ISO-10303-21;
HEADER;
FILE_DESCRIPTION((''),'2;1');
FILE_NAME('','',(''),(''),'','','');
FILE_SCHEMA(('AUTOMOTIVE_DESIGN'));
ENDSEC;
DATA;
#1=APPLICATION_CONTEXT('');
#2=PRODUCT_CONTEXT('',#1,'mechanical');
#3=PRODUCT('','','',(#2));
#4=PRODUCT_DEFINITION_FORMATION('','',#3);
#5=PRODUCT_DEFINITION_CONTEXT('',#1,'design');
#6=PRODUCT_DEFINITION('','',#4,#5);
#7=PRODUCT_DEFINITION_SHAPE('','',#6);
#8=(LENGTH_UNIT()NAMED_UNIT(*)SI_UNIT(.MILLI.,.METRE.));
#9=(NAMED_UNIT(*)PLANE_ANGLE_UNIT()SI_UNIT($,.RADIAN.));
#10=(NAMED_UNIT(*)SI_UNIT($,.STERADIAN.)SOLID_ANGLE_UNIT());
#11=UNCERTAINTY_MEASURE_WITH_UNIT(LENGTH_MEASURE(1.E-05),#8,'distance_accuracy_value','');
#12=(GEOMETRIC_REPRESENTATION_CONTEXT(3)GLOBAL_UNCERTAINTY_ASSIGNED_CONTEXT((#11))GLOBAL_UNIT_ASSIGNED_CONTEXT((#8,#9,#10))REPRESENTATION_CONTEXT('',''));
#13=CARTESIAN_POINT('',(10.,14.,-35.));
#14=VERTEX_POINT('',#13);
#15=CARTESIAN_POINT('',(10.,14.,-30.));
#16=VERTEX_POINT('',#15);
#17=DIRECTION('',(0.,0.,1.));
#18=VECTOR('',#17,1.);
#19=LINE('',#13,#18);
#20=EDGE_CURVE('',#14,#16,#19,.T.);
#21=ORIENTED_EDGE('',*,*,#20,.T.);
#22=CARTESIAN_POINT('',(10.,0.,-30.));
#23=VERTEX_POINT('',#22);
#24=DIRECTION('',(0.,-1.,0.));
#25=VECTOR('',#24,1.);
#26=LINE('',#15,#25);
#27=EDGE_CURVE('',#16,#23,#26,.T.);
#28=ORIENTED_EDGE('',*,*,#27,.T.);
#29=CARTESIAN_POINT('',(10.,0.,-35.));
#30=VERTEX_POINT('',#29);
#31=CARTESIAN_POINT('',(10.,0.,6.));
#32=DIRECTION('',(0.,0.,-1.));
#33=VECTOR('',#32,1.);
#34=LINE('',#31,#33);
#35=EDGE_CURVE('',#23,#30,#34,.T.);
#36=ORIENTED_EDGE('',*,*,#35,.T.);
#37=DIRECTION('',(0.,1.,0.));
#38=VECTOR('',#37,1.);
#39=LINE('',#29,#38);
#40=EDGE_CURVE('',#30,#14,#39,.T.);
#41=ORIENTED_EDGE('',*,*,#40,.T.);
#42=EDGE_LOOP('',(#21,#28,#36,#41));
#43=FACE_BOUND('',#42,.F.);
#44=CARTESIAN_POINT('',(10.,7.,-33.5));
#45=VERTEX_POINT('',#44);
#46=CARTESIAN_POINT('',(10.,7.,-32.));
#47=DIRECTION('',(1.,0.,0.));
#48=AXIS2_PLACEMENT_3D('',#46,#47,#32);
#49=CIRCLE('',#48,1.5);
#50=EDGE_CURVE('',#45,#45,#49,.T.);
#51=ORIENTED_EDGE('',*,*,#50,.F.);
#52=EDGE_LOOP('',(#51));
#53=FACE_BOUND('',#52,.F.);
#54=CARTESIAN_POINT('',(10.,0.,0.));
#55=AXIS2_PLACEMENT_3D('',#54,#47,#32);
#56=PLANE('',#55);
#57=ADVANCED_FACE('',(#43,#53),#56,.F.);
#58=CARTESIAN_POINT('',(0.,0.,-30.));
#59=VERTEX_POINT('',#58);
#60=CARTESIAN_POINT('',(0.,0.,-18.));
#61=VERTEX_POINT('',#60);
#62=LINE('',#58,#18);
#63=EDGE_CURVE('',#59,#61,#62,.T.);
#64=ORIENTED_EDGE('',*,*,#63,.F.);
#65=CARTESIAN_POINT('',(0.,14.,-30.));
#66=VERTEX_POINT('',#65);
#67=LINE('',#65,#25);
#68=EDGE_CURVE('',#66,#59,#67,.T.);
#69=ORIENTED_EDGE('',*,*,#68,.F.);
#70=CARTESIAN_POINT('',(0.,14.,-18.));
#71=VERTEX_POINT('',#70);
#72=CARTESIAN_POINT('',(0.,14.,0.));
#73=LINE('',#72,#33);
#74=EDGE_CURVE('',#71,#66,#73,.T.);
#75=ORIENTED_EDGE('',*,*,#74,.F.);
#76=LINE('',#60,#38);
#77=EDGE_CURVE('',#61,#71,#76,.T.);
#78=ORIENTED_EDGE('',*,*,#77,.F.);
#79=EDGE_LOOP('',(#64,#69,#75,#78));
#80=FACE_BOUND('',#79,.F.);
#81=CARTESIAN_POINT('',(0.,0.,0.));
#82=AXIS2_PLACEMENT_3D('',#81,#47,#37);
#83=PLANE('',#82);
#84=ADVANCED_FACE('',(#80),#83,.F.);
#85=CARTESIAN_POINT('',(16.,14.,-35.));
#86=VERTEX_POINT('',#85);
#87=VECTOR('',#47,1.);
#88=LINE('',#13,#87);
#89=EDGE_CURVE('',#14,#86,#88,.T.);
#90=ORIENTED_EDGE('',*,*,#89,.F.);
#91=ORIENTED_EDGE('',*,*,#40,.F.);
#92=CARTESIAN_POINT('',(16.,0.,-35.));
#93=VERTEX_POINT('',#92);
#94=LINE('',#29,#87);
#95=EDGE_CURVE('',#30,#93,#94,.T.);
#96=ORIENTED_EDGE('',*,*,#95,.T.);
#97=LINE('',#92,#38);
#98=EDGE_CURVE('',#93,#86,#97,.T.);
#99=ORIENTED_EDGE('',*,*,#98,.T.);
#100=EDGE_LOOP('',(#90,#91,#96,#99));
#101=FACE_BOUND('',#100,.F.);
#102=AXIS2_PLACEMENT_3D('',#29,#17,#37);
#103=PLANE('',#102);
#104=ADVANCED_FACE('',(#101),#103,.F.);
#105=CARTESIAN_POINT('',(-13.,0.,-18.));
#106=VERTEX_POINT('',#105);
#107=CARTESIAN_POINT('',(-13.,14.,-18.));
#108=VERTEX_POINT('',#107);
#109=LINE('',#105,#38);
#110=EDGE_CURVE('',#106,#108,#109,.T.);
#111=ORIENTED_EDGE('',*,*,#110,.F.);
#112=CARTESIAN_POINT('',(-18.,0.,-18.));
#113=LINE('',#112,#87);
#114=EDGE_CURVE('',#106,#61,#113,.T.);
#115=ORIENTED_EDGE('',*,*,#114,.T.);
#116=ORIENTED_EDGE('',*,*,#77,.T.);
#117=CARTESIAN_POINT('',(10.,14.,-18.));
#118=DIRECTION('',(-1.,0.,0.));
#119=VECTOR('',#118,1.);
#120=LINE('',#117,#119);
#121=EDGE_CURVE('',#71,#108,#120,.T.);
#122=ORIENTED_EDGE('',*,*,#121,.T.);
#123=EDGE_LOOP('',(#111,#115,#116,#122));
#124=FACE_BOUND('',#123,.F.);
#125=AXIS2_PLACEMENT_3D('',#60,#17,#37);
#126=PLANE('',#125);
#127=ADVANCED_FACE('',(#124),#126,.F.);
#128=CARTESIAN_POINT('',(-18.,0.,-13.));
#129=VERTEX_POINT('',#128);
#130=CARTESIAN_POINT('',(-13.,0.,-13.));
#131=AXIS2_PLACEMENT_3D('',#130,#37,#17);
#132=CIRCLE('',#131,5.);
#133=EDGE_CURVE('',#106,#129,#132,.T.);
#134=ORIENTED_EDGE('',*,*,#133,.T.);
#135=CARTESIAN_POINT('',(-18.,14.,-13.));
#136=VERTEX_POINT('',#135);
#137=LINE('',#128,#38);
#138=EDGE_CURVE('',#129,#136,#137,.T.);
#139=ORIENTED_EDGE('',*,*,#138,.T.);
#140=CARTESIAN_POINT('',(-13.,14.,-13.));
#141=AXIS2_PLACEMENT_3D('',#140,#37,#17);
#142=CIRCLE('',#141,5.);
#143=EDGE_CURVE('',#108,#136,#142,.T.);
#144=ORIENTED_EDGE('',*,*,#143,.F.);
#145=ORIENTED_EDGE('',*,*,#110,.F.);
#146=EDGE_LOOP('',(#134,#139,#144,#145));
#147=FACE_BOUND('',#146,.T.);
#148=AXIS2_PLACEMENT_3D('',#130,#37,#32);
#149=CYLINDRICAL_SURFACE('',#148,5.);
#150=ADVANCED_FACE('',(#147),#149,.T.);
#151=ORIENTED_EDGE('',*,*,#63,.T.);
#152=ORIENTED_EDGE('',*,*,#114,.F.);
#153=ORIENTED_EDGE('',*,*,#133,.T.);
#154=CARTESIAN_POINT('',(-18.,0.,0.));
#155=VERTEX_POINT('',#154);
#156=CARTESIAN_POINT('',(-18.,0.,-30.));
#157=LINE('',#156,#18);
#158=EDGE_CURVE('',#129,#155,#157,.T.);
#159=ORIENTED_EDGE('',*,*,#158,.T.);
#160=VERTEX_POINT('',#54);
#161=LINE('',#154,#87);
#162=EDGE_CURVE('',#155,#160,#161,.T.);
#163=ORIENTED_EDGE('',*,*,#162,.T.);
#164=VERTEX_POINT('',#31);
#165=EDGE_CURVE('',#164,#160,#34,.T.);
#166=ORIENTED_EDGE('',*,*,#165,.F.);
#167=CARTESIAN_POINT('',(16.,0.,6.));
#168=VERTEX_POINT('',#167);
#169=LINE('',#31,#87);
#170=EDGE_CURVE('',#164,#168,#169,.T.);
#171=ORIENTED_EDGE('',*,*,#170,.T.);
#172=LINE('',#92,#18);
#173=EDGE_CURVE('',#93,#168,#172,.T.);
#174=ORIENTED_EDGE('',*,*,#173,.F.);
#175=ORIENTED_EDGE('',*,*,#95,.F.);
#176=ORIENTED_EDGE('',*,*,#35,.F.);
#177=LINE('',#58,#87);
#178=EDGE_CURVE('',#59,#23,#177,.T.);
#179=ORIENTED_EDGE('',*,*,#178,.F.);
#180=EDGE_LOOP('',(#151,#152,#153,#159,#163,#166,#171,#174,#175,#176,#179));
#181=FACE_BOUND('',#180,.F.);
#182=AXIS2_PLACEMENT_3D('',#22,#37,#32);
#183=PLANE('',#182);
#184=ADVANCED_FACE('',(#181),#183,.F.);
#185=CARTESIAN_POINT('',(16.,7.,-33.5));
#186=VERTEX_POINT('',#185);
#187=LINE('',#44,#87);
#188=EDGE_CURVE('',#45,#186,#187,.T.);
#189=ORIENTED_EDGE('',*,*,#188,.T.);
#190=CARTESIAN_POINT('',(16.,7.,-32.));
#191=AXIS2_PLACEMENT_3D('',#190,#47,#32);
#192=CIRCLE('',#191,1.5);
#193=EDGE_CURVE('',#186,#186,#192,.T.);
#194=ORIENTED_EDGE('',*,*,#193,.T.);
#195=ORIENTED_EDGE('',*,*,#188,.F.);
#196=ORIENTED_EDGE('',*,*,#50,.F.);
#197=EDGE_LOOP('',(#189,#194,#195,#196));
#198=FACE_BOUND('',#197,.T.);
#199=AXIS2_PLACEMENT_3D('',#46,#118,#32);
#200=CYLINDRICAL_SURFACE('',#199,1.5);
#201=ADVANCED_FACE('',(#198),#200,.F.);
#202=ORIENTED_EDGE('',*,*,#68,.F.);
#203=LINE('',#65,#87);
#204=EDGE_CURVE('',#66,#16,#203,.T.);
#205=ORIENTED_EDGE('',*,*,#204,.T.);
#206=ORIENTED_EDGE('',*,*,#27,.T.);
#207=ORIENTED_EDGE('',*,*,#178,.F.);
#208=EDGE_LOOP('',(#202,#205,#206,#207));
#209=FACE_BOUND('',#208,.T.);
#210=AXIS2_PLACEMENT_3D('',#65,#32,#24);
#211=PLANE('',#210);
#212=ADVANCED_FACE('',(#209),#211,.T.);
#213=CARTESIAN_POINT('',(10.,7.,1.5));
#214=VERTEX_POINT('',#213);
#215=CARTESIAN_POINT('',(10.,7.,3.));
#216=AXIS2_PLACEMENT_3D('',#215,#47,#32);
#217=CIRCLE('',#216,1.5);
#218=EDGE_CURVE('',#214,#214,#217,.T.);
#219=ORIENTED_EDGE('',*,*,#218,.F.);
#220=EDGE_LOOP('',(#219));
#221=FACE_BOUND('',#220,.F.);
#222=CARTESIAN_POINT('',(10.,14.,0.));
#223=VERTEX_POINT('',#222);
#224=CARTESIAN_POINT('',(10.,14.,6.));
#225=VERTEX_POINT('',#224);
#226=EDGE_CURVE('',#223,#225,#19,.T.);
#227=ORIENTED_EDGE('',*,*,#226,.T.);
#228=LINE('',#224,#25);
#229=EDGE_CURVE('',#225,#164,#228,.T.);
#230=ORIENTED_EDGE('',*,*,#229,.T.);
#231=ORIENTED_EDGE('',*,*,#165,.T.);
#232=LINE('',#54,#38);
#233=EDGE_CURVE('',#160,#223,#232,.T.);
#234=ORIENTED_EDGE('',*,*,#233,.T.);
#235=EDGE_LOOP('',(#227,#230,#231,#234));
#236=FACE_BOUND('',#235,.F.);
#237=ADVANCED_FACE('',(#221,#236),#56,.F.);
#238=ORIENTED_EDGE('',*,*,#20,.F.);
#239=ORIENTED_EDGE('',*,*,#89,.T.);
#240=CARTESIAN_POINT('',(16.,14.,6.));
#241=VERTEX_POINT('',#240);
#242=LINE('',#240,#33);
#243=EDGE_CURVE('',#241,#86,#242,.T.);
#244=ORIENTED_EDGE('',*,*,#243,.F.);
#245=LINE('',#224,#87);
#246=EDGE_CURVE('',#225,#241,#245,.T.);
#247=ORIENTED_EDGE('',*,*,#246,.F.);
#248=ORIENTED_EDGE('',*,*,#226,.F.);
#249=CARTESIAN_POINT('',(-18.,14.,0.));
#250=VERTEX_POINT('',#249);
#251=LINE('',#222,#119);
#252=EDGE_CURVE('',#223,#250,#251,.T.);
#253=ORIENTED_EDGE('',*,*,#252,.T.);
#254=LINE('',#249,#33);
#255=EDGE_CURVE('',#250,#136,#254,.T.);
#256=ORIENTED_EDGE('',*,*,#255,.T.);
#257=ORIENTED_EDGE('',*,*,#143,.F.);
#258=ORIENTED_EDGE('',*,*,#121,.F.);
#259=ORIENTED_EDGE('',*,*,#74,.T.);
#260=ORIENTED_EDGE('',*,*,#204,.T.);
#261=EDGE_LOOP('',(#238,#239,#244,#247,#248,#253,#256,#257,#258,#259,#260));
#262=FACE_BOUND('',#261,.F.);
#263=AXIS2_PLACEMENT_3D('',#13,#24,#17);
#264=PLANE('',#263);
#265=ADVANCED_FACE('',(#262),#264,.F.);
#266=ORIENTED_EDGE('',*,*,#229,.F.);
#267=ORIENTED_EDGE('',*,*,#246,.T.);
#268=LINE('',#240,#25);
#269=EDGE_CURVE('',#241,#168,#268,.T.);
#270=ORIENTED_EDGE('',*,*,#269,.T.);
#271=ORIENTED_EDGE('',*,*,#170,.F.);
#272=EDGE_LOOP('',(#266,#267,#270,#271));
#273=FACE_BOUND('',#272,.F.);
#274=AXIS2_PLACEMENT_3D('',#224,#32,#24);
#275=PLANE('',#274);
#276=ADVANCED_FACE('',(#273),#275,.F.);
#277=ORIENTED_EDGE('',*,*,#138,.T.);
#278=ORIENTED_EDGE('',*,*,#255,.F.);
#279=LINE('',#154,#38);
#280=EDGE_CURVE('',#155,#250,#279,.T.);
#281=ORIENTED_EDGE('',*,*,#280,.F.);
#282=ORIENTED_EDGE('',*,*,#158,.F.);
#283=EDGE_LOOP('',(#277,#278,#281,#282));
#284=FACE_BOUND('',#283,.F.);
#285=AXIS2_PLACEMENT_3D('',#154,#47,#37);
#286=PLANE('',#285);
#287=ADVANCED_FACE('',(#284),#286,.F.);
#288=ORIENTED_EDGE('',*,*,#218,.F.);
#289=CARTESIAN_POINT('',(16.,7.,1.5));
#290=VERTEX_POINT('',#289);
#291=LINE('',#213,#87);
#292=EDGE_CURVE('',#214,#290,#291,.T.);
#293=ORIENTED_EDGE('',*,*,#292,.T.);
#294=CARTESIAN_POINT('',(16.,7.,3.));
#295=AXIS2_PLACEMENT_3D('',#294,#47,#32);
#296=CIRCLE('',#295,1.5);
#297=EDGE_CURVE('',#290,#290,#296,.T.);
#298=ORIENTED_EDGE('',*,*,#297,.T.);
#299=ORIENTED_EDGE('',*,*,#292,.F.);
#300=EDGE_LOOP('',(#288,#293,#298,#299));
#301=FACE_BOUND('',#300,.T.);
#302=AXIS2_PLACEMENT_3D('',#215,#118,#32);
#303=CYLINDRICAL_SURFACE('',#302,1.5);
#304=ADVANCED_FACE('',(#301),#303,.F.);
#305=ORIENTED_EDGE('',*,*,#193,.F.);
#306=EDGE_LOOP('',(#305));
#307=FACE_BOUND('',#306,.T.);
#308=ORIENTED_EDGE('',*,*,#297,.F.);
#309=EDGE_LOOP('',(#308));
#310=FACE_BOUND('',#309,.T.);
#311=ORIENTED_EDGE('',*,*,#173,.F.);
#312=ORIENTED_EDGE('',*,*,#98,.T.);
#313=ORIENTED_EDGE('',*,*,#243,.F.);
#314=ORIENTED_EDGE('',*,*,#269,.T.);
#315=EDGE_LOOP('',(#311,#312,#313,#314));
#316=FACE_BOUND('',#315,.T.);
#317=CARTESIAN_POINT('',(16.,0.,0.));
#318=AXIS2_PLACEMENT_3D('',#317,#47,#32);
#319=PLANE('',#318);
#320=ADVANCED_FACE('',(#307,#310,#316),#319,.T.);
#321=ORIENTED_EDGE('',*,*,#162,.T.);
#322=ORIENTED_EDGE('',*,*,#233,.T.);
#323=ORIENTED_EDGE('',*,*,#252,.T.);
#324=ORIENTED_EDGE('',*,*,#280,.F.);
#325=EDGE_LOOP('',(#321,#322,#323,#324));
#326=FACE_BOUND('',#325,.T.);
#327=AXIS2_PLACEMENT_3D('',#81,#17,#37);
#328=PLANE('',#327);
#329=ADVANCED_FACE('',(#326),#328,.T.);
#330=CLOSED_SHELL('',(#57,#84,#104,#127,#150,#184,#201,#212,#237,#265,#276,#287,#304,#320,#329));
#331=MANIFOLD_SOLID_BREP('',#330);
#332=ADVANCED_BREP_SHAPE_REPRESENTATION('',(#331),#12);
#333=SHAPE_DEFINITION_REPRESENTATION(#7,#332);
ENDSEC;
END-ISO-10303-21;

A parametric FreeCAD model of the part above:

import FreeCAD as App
import Part
import Sketcher
Q = App.Units.Quantity


def edges_at(feature, points):
    """Names of the edges that pass closest to the given points."""
    edges = feature.Shape.Edges
    near = lambda p: min(range(len(edges)), key=lambda i: edges[i].distToShape(Part.Vertex(*p))[0])
    return sorted({f"Edge{near(p) + 1}" for p in points})

doc = App.newDocument("Part")
body = doc.addObject("PartDesign::Body", "Body")

sketch1 = body.newObject("Sketcher::SketchObject", "Sketch")
sketch1.AttachmentSupport = (doc.getObject("YZ_Plane"), [""])
sketch1.MapMode = "FlatFace"
sketch1.addGeometry([
    Part.LineSegment(App.Vector(14, -18, 0), App.Vector(0, -18, 0)),
    Part.LineSegment(App.Vector(0, -18, 0), App.Vector(0, -30, 0)),
    Part.LineSegment(App.Vector(0, -30, 0), App.Vector(14, -30, 0)),
    Part.LineSegment(App.Vector(14, -30, 0), App.Vector(14, -18, 0)),
], False)
sketch1.addConstraint([
    Sketcher.Constraint("Coincident", 0, 2, 1, 1),
    Sketcher.Constraint("Coincident", 1, 2, 2, 1),
    Sketcher.Constraint("Coincident", 2, 2, 3, 1),
    Sketcher.Constraint("Coincident", 3, 2, 0, 1),
    Sketcher.Constraint("Horizontal", 0),
    Sketcher.Constraint("Vertical", 1),
    Sketcher.Constraint("Horizontal", 2),
    Sketcher.Constraint("Vertical", 3),
    Sketcher.Constraint("PointOnObject", 0, 2, -2),
    Sketcher.Constraint("DistanceX", 0, 2, 0, 1, Q("14 mm")),
    Sketcher.Constraint("DistanceY", 1, 2, 1, 1, Q("12 mm")),
    Sketcher.Constraint("DistanceY", 1, 2, -1, 1, Q("30 mm")),
])
pad1 = body.newObject("PartDesign::Pad", "Pad")
pad1.Profile = sketch1
pad1.Length = 10

sketch2 = body.newObject("Sketcher::SketchObject", "Sketch001")
sketch2.AttachmentSupport = (doc.getObject("YZ_Plane"), [""])
sketch2.MapMode = "FlatFace"
sketch2.addGeometry([
    Part.LineSegment(App.Vector(14, 0, 0), App.Vector(0, 0, 0)),
    Part.LineSegment(App.Vector(0, 0, 0), App.Vector(0, -18, 0)),
    Part.LineSegment(App.Vector(0, -18, 0), App.Vector(14, -18, 0)),
    Part.LineSegment(App.Vector(14, -18, 0), App.Vector(14, 0, 0)),
], False)
sketch2.addConstraint([
    Sketcher.Constraint("Coincident", 0, 2, 1, 1),
    Sketcher.Constraint("Coincident", 1, 2, 2, 1),
    Sketcher.Constraint("Coincident", 2, 2, 3, 1),
    Sketcher.Constraint("Coincident", 3, 2, 0, 1),
    Sketcher.Constraint("Horizontal", 0),
    Sketcher.Constraint("Vertical", 1),
    Sketcher.Constraint("Horizontal", 2),
    Sketcher.Constraint("Vertical", 3),
    Sketcher.Constraint("Coincident", 0, 2, -1, 1),
    Sketcher.Constraint("DistanceX", 0, 2, 0, 1, Q("14 mm")),
    Sketcher.Constraint("DistanceY", 1, 2, 1, 1, Q("18 mm")),
])
pad2 = body.newObject("PartDesign::Pad", "Pad001")
pad2.Profile = sketch2
pad2.Type = "TwoLengths"
pad2.Length = 10
pad2.Length2 = 18
doc.recompute()

fillet = body.newObject("PartDesign::Fillet", "Fillet")
fillet.Base = (pad2, edges_at(pad2, [(-18, 7, -18)]))
fillet.Radius = 5

sketch3 = body.newObject("Sketcher::SketchObject", "Sketch002")
sketch3.AttachmentSupport = (doc.getObject("YZ_Plane"), [""])
sketch3.MapMode = "FlatFace"
sketch3.AttachmentOffset = App.Placement(App.Vector(0, 0, 10), App.Rotation())
sketch3.addGeometry([
    Part.LineSegment(App.Vector(0, -35, 0), App.Vector(14, -35, 0)),
    Part.LineSegment(App.Vector(14, -35, 0), App.Vector(14, 6, 0)),
    Part.LineSegment(App.Vector(14, 6, 0), App.Vector(0, 6, 0)),
    Part.LineSegment(App.Vector(0, 6, 0), App.Vector(0, -35, 0)),
    Part.Circle(App.Vector(7, -32, 0), App.Vector(0, 0, 1), 1.5),
    Part.Circle(App.Vector(7, 3, 0), App.Vector(0, 0, 1), 1.5),
], False)
sketch3.addConstraint([
    Sketcher.Constraint("Coincident", 0, 2, 1, 1),
    Sketcher.Constraint("Coincident", 1, 2, 2, 1),
    Sketcher.Constraint("Coincident", 2, 2, 3, 1),
    Sketcher.Constraint("Coincident", 3, 2, 0, 1),
    Sketcher.Constraint("Horizontal", 0),
    Sketcher.Constraint("Vertical", 1),
    Sketcher.Constraint("Horizontal", 2),
    Sketcher.Constraint("Vertical", 3),
    Sketcher.Constraint("Equal", 4, 5),
    Sketcher.Constraint("PointOnObject", 2, 2, -2),
    Sketcher.Constraint("Vertical", 4, 3, 5, 3),
    Sketcher.Constraint("Diameter", 4, Q("3 mm")),
    Sketcher.Constraint("DistanceX", 0, 1, 0, 2, Q("14 mm")),
    Sketcher.Constraint("DistanceY", 1, 1, 1, 2, Q("41 mm")),
    Sketcher.Constraint("DistanceY", -1, 1, 5, 3, Q("3 mm")),
    Sketcher.Constraint("DistanceY", 0, 2, -1, 1, Q("35 mm")),
    Sketcher.Constraint("DistanceY", 4, 3, 5, 3, Q("35 mm")),
    Sketcher.Constraint("DistanceX", -1, 1, 4, 3, Q("7 mm")),
])
pad3 = body.newObject("PartDesign::Pad", "Pad002")
pad3.Profile = sketch3
pad3.Length = 6

doc.recompute()
